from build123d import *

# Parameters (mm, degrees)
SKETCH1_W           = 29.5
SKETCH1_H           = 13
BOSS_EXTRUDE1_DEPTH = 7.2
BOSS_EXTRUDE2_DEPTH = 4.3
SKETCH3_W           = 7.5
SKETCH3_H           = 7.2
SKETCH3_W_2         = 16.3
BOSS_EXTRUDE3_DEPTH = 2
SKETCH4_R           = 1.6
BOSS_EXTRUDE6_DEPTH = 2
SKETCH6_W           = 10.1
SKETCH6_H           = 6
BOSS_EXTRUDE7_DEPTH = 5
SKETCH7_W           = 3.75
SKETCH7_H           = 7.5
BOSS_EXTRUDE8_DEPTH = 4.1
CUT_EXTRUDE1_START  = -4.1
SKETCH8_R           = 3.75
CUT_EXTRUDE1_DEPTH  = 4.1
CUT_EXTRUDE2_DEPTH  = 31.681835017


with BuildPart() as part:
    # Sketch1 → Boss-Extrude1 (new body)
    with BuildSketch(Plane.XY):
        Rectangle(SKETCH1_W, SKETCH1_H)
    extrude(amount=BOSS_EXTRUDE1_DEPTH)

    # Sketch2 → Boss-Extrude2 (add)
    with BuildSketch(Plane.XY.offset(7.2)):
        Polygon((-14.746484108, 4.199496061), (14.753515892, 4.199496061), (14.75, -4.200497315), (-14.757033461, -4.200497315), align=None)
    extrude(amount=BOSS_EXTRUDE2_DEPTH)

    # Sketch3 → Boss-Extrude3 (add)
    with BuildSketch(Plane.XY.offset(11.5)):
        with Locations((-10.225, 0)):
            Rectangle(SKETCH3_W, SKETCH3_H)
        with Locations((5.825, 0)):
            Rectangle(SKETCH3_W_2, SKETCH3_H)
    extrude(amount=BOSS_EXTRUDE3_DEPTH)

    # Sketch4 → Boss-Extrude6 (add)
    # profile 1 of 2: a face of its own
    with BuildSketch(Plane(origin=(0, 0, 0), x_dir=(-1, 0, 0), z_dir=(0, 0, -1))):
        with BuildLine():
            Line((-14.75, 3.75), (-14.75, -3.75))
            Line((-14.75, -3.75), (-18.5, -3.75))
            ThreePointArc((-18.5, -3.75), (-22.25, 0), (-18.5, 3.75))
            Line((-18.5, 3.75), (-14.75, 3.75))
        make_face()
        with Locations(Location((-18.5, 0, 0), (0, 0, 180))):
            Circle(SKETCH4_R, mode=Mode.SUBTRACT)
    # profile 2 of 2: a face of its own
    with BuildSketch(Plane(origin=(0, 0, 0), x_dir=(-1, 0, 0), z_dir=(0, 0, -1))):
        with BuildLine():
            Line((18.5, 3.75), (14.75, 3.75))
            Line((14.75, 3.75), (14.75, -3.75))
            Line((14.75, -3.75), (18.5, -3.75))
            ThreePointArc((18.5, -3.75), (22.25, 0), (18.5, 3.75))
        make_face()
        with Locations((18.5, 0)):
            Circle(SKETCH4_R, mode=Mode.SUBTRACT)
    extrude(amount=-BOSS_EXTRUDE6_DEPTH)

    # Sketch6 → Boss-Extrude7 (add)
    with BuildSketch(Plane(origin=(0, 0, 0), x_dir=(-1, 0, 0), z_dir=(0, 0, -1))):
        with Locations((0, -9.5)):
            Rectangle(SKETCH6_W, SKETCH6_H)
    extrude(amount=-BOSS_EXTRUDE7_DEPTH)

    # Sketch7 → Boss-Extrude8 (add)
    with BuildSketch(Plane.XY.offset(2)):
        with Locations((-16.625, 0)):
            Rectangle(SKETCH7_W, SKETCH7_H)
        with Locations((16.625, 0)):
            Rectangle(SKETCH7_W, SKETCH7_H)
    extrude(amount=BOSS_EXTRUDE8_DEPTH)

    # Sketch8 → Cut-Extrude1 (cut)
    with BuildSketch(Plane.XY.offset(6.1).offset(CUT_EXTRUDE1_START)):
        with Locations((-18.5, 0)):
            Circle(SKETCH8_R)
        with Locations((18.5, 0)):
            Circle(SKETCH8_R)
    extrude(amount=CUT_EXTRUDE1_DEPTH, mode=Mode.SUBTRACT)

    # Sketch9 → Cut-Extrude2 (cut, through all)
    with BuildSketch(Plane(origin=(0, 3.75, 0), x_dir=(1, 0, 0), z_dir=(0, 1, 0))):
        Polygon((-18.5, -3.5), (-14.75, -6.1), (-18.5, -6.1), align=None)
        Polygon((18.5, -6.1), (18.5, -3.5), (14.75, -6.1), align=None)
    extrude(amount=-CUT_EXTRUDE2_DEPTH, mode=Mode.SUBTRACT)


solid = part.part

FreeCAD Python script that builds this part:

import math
import FreeCAD as App
import Part
import Sketcher

V = App.Vector
Q = App.Units.Quantity

doc = App.newDocument("Part")
body = doc.addObject("PartDesign::Body", "Body")

# Sketch on XY plane
sketch1 = body.newObject("Sketcher::SketchObject", "Sketch")
sketch1.AttachmentSupport = (doc.getObject("XY_Plane"), [""])
sketch1.MapMode = "FlatFace"
sketch1.addGeometry(Part.LineSegment(V(-15, 6, 0), V(-15, -6, 0)), False)
sketch1.addGeometry(Part.LineSegment(V(-15, -6, 0), V(15, -6, 0)), False)
sketch1.addGeometry(Part.LineSegment(V(15, -6, 0), V(15, 6, 0)), False)
sketch1.addGeometry(Part.LineSegment(V(15, 6, 0), V(-15, 6, 0)), False)
sketch1.addConstraint(Sketcher.Constraint("Coincident", 0, 2, 1, 1))
sketch1.addConstraint(Sketcher.Constraint("Coincident", 1, 2, 2, 1))
sketch1.addConstraint(Sketcher.Constraint("Coincident", 2, 2, 3, 1))
sketch1.addConstraint(Sketcher.Constraint("Coincident", 3, 2, 0, 1))
sketch1.addConstraint(Sketcher.Constraint("Vertical", 0))
sketch1.addConstraint(Sketcher.Constraint("Horizontal", 1))
sketch1.addConstraint(Sketcher.Constraint("Vertical", 2))
sketch1.addConstraint(Sketcher.Constraint("Horizontal", 3))
sketch1.addConstraint(Sketcher.Constraint("Symmetric", 0, 2, 2, 2, -1, 1))
sketch1.addConstraint(Sketcher.Constraint("DistanceY", 0, 2, 0, 1, Q("13 mm")))
sketch1.addConstraint(Sketcher.Constraint("DistanceX", 1, 1, 1, 2, Q("29.5 mm")))
pad1 = body.newObject("PartDesign::Pad", "Pad")
pad1.Profile = sketch1
pad1.Length = 7.2

# Sketch on XY plane
sketch2 = body.newObject("Sketcher::SketchObject", "Sketch001")
sketch2.AttachmentSupport = (doc.getObject("XY_Plane"), [""])
sketch2.MapMode = "FlatFace"
sketch2.AttachmentOffset = App.Placement(V(0, 0, 7.2), App.Rotation())
sketch2.addGeometry(Part.LineSegment(V(15, 4, 0), V(-15, 4, 0)), False)
sketch2.addGeometry(Part.LineSegment(V(-15, 4, 0), V(-15, -4, 0)), False)
sketch2.addGeometry(Part.LineSegment(V(-15, -4, 0), V(15, -4, 0)), False)
sketch2.addGeometry(Part.LineSegment(V(15, -4, 0), V(15, 4, 0)), False)
sketch2.addConstraint(Sketcher.Constraint("Coincident", 0, 2, 1, 1))
sketch2.addConstraint(Sketcher.Constraint("Coincident", 1, 2, 2, 1))
sketch2.addConstraint(Sketcher.Constraint("Coincident", 2, 2, 3, 1))
sketch2.addConstraint(Sketcher.Constraint("Coincident", 3, 2, 0, 1))
sketch2.addConstraint(Sketcher.Constraint("Horizontal", 0))
sketch2.addConstraint(Sketcher.Constraint("Horizontal", 2))
sketch2.addConstraint(Sketcher.Constraint("DistanceX", 0, 2, 0, 1, Q("29.5 mm")))
sketch2.addConstraint(Sketcher.Constraint("Distance", 1, Q("8.4 mm")))
sketch2.addConstraint(Sketcher.Constraint("DistanceX", -1, 1, 2, 2, Q("14.75 mm")))
sketch2.addConstraint(Sketcher.Constraint("DistanceX", 2, 1, 2, 2, Q("29.507033 mm")))
sketch2.addConstraint(Sketcher.Constraint("DistanceX", 1, 2, 0, 2, Q("0.010549 mm")))
sketch2.addConstraint(Sketcher.Constraint("DistanceY", -1, 1, 0, 2, Q("4.199496 mm")))
pad2 = body.newObject("PartDesign::Pad", "Pad001")
pad2.Profile = sketch2
pad2.Length = 4.3

# Sketch on XY plane
sketch3 = body.newObject("Sketcher::SketchObject", "Sketch002")
sketch3.AttachmentSupport = (doc.getObject("XY_Plane"), [""])
sketch3.MapMode = "FlatFace"
sketch3.AttachmentOffset = App.Placement(V(0, 0, 11.5), App.Rotation())
sketch3.addGeometry(Part.LineSegment(V(-14, 4, 0), V(-14, -4, 0)), False)
sketch3.addGeometry(Part.LineSegment(V(-14, -4, 0), V(-6, -4, 0)), False)
sketch3.addGeometry(Part.LineSegment(V(-6, -4, 0), V(-6, 4, 0)), False)
sketch3.addGeometry(Part.LineSegment(V(-6, 4, 0), V(-14, 4, 0)), False)
sketch3.addGeometry(Part.LineSegment(V(-2, 4, 0), V(-2, -4, 0)), False)
sketch3.addGeometry(Part.LineSegment(V(-2, -4, 0), V(14, -4, 0)), False)
sketch3.addGeometry(Part.LineSegment(V(14, -4, 0), V(14, 4, 0)), False)
sketch3.addGeometry(Part.LineSegment(V(14, 4, 0), V(-2, 4, 0)), False)
sketch3.addConstraint(Sketcher.Constraint("Coincident", 0, 2, 1, 1))
sketch3.addConstraint(Sketcher.Constraint("Coincident", 1, 2, 2, 1))
sketch3.addConstraint(Sketcher.Constraint("Coincident", 2, 2, 3, 1))
sketch3.addConstraint(Sketcher.Constraint("Coincident", 3, 2, 0, 1))
sketch3.addConstraint(Sketcher.Constraint("Coincident", 4, 2, 5, 1))
sketch3.addConstraint(Sketcher.Constraint("Coincident", 5, 2, 6, 1))
sketch3.addConstraint(Sketcher.Constraint("Coincident", 6, 2, 7, 1))
sketch3.addConstraint(Sketcher.Constraint("Coincident", 7, 2, 4, 1))
sketch3.addConstraint(Sketcher.Constraint("Vertical", 0))
sketch3.addConstraint(Sketcher.Constraint("Horizontal", 1))
sketch3.addConstraint(Sketcher.Constraint("Vertical", 2))
sketch3.addConstraint(Sketcher.Constraint("Horizontal", 3))
sketch3.addConstraint(Sketcher.Constraint("Vertical", 4))
sketch3.addConstraint(Sketcher.Constraint("Horizontal", 5))
sketch3.addConstraint(Sketcher.Constraint("Vertical", 6))
sketch3.addConstraint(Sketcher.Constraint("Horizontal", 7))
sketch3.addConstraint(Sketcher.Constraint("Symmetric", 3, 2, 5, 2, -1, 1))
sketch3.addConstraint(Sketcher.Constraint("Horizontal", 1, 2, 4, 2))
sketch3.addConstraint(Sketcher.Constraint("Horizontal", 3, 2, 6, 2))
sketch3.addConstraint(Sketcher.Constraint("DistanceX", 1, 1, 1, 2, Q("7.5 mm")))
sketch3.addConstraint(Sketcher.Constraint("DistanceX", 5, 1, 5, 2, Q("16.3 mm")))
sketch3.addConstraint(Sketcher.Constraint("DistanceY", 0, 2, 0, 1, Q("7.2 mm")))
sketch3.addConstraint(Sketcher.Constraint("DistanceX", 1, 2, 4, 2, Q("4.15 mm")))
pad3 = body.newObject("PartDesign::Pad", "Pad002")
pad3.Profile = sketch3
pad3.Length = 2

# Sketch on XY plane
sketch4 = body.newObject("Sketcher::SketchObject", "Sketch003")
sketch4.AttachmentSupport = (doc.getObject("XY_Plane"), [""])
sketch4.MapMode = "FlatFace"
sketch4.addGeometry(Part.LineSegment(V(14.8, -3.8, 0), V(14.8, 3.8, 0)), False)
sketch4.addGeometry(Part.LineSegment(V(14.8, 3.8, 0), V(18.5, 3.8, 0)), False)
sketch4.addGeometry(Part.ArcOfCircle(Part.Circle(V(18.5, 0, 0), V(0, 0, 1), 3.8), math.radians(-90), math.radians(90)), False)
sketch4.addGeometry(Part.LineSegment(V(18.5, -3.8, 0), V(14.8, -3.8, 0)), False)
sketch4.addGeometry(Part.Circle(V(18.5, 0, 0), V(0, 0, 1), 1.6), False)
sketch4.addGeometry(Part.LineSegment(V(-18.5, 3.8, 0), V(-14.8, 3.8, 0)), False)
sketch4.addGeometry(Part.LineSegment(V(-14.8, 3.8, 0), V(-14.8, -3.8, 0)), False)
sketch4.addGeometry(Part.LineSegment(V(-14.8, -3.8, 0), V(-18.5, -3.8, 0)), False)
sketch4.addGeometry(Part.ArcOfCircle(Part.Circle(V(-18.5, 0, 0), V(0, 0, 1), 3.8), math.radians(90), math.radians(270)), False)
sketch4.addGeometry(Part.Circle(V(-18.5, 0, 0), V(0, 0, 1), 1.6), False)
sketch4.addConstraint(Sketcher.Constraint("Coincident", 0, 2, 1, 1))
sketch4.addConstraint(Sketcher.Constraint("Tangent", 1, 2, 2, 2))
sketch4.addConstraint(Sketcher.Constraint("Tangent", 2, 1, 3, 1))
sketch4.addConstraint(Sketcher.Constraint("Coincident", 3, 2, 0, 1))
sketch4.addConstraint(Sketcher.Constraint("Coincident", 5, 2, 6, 1))
sketch4.addConstraint(Sketcher.Constraint("Coincident", 6, 2, 7, 1))
sketch4.addConstraint(Sketcher.Constraint("Tangent", 7, 2, 8, 2))
sketch4.addConstraint(Sketcher.Constraint("Tangent", 8, 1, 5, 1))
sketch4.addConstraint(Sketcher.Constraint("Vertical", 0))
sketch4.addConstraint(Sketcher.Constraint("Horizontal", 1))
sketch4.addConstraint(Sketcher.Constraint("Horizontal", 3))
sketch4.addConstraint(Sketcher.Constraint("Horizontal", 5))
sketch4.addConstraint(Sketcher.Constraint("Vertical", 6))
sketch4.addConstraint(Sketcher.Constraint("Horizontal", 7))
sketch4.addConstraint(Sketcher.Constraint("Coincident", 4, 3, 2, 3))
sketch4.addConstraint(Sketcher.Constraint("Coincident", 9, 3, 8, 3))
sketch4.addConstraint(Sketcher.Constraint("Equal", 2, 8))
sketch4.addConstraint(Sketcher.Constraint("Equal", 4, 9))
sketch4.addConstraint(Sketcher.Constraint("Symmetric", 2, 3, 8, 3, -1, 1))
sketch4.addConstraint(Sketcher.Constraint("Symmetric", 0, 2, 5, 2, -2))
sketch4.addConstraint(Sketcher.Constraint("Diameter", 4, Q("3.2 mm")))
sketch4.addConstraint(Sketcher.Constraint("Radius", 2, Q("3.75 mm")))
sketch4.addConstraint(Sketcher.Constraint("DistanceX", 8, 3, 2, 3, Q("37 mm")))
sketch4.addConstraint(Sketcher.Constraint("DistanceX", 1, 1, 1, 2, Q("3.75 mm")))
pad4 = body.newObject("PartDesign::Pad", "Pad003")
pad4.Profile = sketch4
pad4.Length = 2

# Sketch on XY plane
sketch5 = body.newObject("Sketcher::SketchObject", "Sketch004")
sketch5.AttachmentSupport = (doc.getObject("XY_Plane"), [""])
sketch5.MapMode = "FlatFace"
sketch5.addGeometry(Part.LineSegment(V(5, -6, 0), V(5, -12, 0)), False)
sketch5.addGeometry(Part.LineSegment(V(5, -12, 0), V(-5, -12, 0)), False)
sketch5.addGeometry(Part.LineSegment(V(-5, -12, 0), V(-5, -6, 0)), False)
sketch5.addGeometry(Part.LineSegment(V(-5, -6, 0), V(5, -6, 0)), False)
sketch5.addConstraint(Sketcher.Constraint("Coincident", 0, 2, 1, 1))
sketch5.addConstraint(Sketcher.Constraint("Coincident", 1, 2, 2, 1))
sketch5.addConstraint(Sketcher.Constraint("Coincident", 2, 2, 3, 1))
sketch5.addConstraint(Sketcher.Constraint("Coincident", 3, 2, 0, 1))
sketch5.addConstraint(Sketcher.Constraint("Vertical", 0))
sketch5.addConstraint(Sketcher.Constraint("Horizontal", 1))
sketch5.addConstraint(Sketcher.Constraint("Vertical", 2))
sketch5.addConstraint(Sketcher.Constraint("Horizontal", 3))
sketch5.addConstraint(Sketcher.Constraint("DistanceY", 0, 2, 0, 1, Q("6 mm")))
sketch5.addConstraint(Sketcher.Constraint("DistanceX", 1, 2, 1, 1, Q("10.1 mm")))
sketch5.addConstraint(Sketcher.Constraint("DistanceY", 0, 2, -1, 1, Q("12.5 mm")))
sketch5.addConstraint(Sketcher.Constraint("DistanceX", -1, 1, 0, 2, Q("5.05 mm")))
pad5 = body.newObject("PartDesign::Pad", "Pad004")
pad5.Profile = sketch5
pad5.Length = 5

# Sketch on XY plane
sketch6 = body.newObject("Sketcher::SketchObject", "Sketch005")
sketch6.AttachmentSupport = (doc.getObject("XY_Plane"), [""])
sketch6.MapMode = "FlatFace"
sketch6.AttachmentOffset = App.Placement(V(0, 0, 2), App.Rotation())
sketch6.addGeometry(Part.LineSegment(V(-18.5, 3.8, 0), V(-18.5, -3.8, 0)), False)
sketch6.addGeometry(Part.LineSegment(V(-18.5, -3.8, 0), V(-14.8, -3.8, 0)), False)
sketch6.addGeometry(Part.LineSegment(V(-14.8, -3.8, 0), V(-14.8, 3.8, 0)), False)
sketch6.addGeometry(Part.LineSegment(V(-14.8, 3.8, 0), V(-18.5, 3.8, 0)), False)
sketch6.addGeometry(Part.LineSegment(V(14.8, 3.8, 0), V(14.8, -3.8, 0)), False)
sketch6.addGeometry(Part.LineSegment(V(14.8, -3.8, 0), V(18.5, -3.8, 0)), False)
sketch6.addGeometry(Part.LineSegment(V(18.5, -3.8, 0), V(18.5, 3.8, 0)), False)
sketch6.addGeometry(Part.LineSegment(V(18.5, 3.8, 0), V(14.8, 3.8, 0)), False)
sketch6.addConstraint(Sketcher.Constraint("Coincident", 0, 2, 1, 1))
sketch6.addConstraint(Sketcher.Constraint("Coincident", 1, 2, 2, 1))
sketch6.addConstraint(Sketcher.Constraint("Coincident", 2, 2, 3, 1))
sketch6.addConstraint(Sketcher.Constraint("Coincident", 3, 2, 0, 1))
sketch6.addConstraint(Sketcher.Constraint("Coincident", 4, 2, 5, 1))
sketch6.addConstraint(Sketcher.Constraint("Coincident", 5, 2, 6, 1))
sketch6.addConstraint(Sketcher.Constraint("Coincident", 6, 2, 7, 1))
sketch6.addConstraint(Sketcher.Constraint("Coincident", 7, 2, 4, 1))
sketch6.addConstraint(Sketcher.Constraint("Vertical", 0))
sketch6.addConstraint(Sketcher.Constraint("Horizontal", 1))
sketch6.addConstraint(Sketcher.Constraint("Vertical", 2))
sketch6.addConstraint(Sketcher.Constraint("Horizontal", 3))
sketch6.addConstraint(Sketcher.Constraint("Vertical", 4))
sketch6.addConstraint(Sketcher.Constraint("Horizontal", 5))
sketch6.addConstraint(Sketcher.Constraint("Vertical", 6))
sketch6.addConstraint(Sketcher.Constraint("Horizontal", 7))
sketch6.addConstraint(Sketcher.Constraint("Symmetric", 2, 2, 4, 2, -1, 1))
sketch6.addConstraint(Sketcher.Constraint("Symmetric", 0, 2, 6, 2, -1, 1))
sketch6.addConstraint(Sketcher.Constraint("Horizontal", 1, 2, 4, 2))
sketch6.addConstraint(Sketcher.Constraint("DistanceY", 0, 2, 0, 1, Q("7.5 mm")))
sketch6.addConstraint(Sketcher.Constraint("DistanceX", 0, 2, 5, 2, Q("37 mm")))
sketch6.addConstraint(Sketcher.Constraint("DistanceX", 1, 1, 1, 2, Q("3.75 mm")))
pad6 = body.newObject("PartDesign::Pad", "Pad005")
pad6.Profile = sketch6
pad6.Length = 4.1

# Sketch on XY plane
sketch7 = body.newObject("Sketcher::SketchObject", "Sketch006")
sketch7.AttachmentSupport = (doc.getObject("XY_Plane"), [""])
sketch7.MapMode = "FlatFace"
sketch7.AttachmentOffset = App.Placement(V(0, 0, 2), App.Rotation())
sketch7.addGeometry(Part.Circle(V(-18.5, 0, 0), V(0, 0, 1), 3.8), False)
sketch7.addGeometry(Part.Circle(V(18.5, 0, 0), V(0, 0, 1), 3.8), False)
sketch7.addConstraint(Sketcher.Constraint("Equal", 0, 1))
sketch7.addConstraint(Sketcher.Constraint("Symmetric", 0, 3, 1, 3, -1, 1))
sketch7.addConstraint(Sketcher.Constraint("PointOnObject", 0, 3, -1))
sketch7.addConstraint(Sketcher.Constraint("Diameter", 0, Q("7.5 mm")))
sketch7.addConstraint(Sketcher.Constraint("DistanceX", 0, 3, 1, 3, Q("37 mm")))
pocket1 = body.newObject("PartDesign::Pocket", "Pocket")
pocket1.Profile = sketch7
pocket1.Length = 4.1
pocket1.Reversed = True

# Sketch on XZ plane
sketch8 = body.newObject("Sketcher::SketchObject", "Sketch007")
sketch8.AttachmentSupport = (doc.getObject("XZ_Plane"), [""])
sketch8.MapMode = "FlatFace"
sketch8.AttachmentOffset = App.Placement(V(0, 0, -3.75), App.Rotation())
sketch8.addGeometry(Part.LineSegment(V(-14.8, 6.1, 0), V(-18.5, 3.5, 0)), False)
sketch8.addGeometry(Part.LineSegment(V(-18.5, 3.5, 0), V(-18.5, 6.1, 0)), False)
sketch8.addGeometry(Part.LineSegment(V(-18.5, 6.1, 0), V(-14.8, 6.1, 0)), False)
sketch8.addGeometry(Part.LineSegment(V(18.5, 6.1, 0), V(18.5, 3.5, 0)), False)
sketch8.addGeometry(Part.LineSegment(V(18.5, 3.5, 0), V(14.8, 6.1, 0)), False)
sketch8.addGeometry(Part.LineSegment(V(14.8, 6.1, 0), V(18.5, 6.1, 0)), False)
sketch8.addConstraint(Sketcher.Constraint("Coincident", 0, 2, 1, 1))
sketch8.addConstraint(Sketcher.Constraint("Coincident", 1, 2, 2, 1))
sketch8.addConstraint(Sketcher.Constraint("Coincident", 2, 2, 0, 1))
sketch8.addConstraint(Sketcher.Constraint("Coincident", 3, 2, 4, 1))
sketch8.addConstraint(Sketcher.Constraint("Coincident", 4, 2, 5, 1))
sketch8.addConstraint(Sketcher.Constraint("Coincident", 5, 2, 3, 1))
sketch8.addConstraint(Sketcher.Constraint("Vertical", 1))
sketch8.addConstraint(Sketcher.Constraint("Horizontal", 2))
sketch8.addConstraint(Sketcher.Constraint("Vertical", 3))
sketch8.addConstraint(Sketcher.Constraint("Horizontal", 5))
sketch8.addConstraint(Sketcher.Constraint("Symmetric", 0, 2, 3, 2, -2))
sketch8.addConstraint(Sketcher.Constraint("Symmetric", 2, 2, 4, 2, -2))
sketch8.addConstraint(Sketcher.Constraint("DistanceY", 1, 1, 1, 2, Q("2.6 mm")))
sketch8.addConstraint(Sketcher.Constraint("DistanceX", 0, 2, 3, 2, Q("37 mm")))
sketch8.addConstraint(Sketcher.Constraint("DistanceX", 2, 1, 2, 2, Q("3.75 mm")))
sketch8.addConstraint(Sketcher.Constraint("DistanceY", -1, 1, 0, 2, Q("3.5 mm")))
pocket2 = body.newObject("PartDesign::Pocket", "Pocket001")
pocket2.Profile = sketch8
pocket2.Type = "ThroughAll"
pocket2.Reversed = True

doc.recompute()
